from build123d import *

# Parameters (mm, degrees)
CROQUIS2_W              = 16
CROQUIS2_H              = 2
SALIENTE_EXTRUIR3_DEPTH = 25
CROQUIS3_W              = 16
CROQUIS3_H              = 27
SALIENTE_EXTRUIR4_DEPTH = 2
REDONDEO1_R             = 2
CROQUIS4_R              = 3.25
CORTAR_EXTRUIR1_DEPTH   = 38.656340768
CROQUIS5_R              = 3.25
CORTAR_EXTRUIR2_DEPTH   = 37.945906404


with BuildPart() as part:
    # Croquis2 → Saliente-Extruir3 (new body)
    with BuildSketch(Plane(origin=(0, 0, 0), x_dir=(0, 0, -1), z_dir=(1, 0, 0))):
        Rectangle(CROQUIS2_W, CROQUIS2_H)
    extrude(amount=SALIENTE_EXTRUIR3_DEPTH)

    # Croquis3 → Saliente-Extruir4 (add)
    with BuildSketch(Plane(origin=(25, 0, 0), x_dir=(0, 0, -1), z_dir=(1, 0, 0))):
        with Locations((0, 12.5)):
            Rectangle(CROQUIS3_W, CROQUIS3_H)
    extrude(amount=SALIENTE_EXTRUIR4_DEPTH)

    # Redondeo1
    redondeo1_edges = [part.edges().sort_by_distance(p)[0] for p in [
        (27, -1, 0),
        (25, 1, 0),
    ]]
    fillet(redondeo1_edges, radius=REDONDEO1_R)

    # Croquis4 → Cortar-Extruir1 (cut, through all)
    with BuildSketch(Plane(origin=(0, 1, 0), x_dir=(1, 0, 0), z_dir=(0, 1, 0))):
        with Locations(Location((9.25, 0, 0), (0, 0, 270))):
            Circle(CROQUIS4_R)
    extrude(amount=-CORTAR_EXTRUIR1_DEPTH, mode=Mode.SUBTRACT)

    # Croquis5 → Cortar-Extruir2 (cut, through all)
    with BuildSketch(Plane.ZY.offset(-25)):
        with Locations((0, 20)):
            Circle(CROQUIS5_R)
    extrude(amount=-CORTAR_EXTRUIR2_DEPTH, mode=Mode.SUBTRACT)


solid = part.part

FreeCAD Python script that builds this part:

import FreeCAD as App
import Part
import Sketcher


def edges_at(feature, points):
    """Names of the edges that pass closest to the given points."""
    edges = feature.Shape.Edges
    near = lambda p: min(range(len(edges)), key=lambda i: edges[i].distToShape(Part.Vertex(*p))[0])
    return sorted({f"Edge{near(p) + 1}" for p in points})

doc = App.newDocument("Part")
body = doc.addObject("PartDesign::Body", "Body")

# Sketch on YZ plane
sketch1 = body.newObject("Sketcher::SketchObject", "Sketch")
sketch1.AttachmentSupport = (doc.getObject("YZ_Plane"), [""])
sketch1.MapMode = "FlatFace"
sketch1.addGeometry([
    Part.LineSegment(App.Vector(1, 8, 0), App.Vector(-1, 8, 0)),
    Part.LineSegment(App.Vector(-1, 8, 0), App.Vector(-1, -8, 0)),
    Part.LineSegment(App.Vector(-1, -8, 0), App.Vector(1, -8, 0)),
    Part.LineSegment(App.Vector(1, -8, 0), App.Vector(1, 8, 0)),
], False)
sketch1.addConstraint([
    Sketcher.Constraint("Coincident", 0, 2, 1, 1),
    Sketcher.Constraint("Coincident", 1, 2, 2, 1),
    Sketcher.Constraint("Coincident", 2, 2, 3, 1),
    Sketcher.Constraint("Coincident", 3, 2, 0, 1),
    Sketcher.Constraint("Horizontal", 0),
    Sketcher.Constraint("Vertical", 1),
    Sketcher.Constraint("Horizontal", 2),
    Sketcher.Constraint("Vertical", 3),
    Sketcher.Constraint("Symmetric", 0, 2, 2, 2, -1, 1),
    Sketcher.Constraint("DistanceX", 0, 2, 0, 1, 2.0),
    Sketcher.Constraint("DistanceY", 1, 2, 1, 1, 16.0),
])
pad1 = body.newObject("PartDesign::Pad", "Pad")
pad1.Profile = sketch1
pad1.Length = 25

# Sketch on YZ plane
sketch2 = body.newObject("Sketcher::SketchObject", "Sketch001")
sketch2.AttachmentSupport = (doc.getObject("YZ_Plane"), [""])
sketch2.MapMode = "FlatFace"
sketch2.AttachmentOffset = App.Placement(App.Vector(0, 0, 25), App.Rotation())
sketch2.addGeometry([
    Part.LineSegment(App.Vector(26, 8, 0), App.Vector(-1, 8, 0)),
    Part.LineSegment(App.Vector(-1, 8, 0), App.Vector(-1, -8, 0)),
    Part.LineSegment(App.Vector(-1, -8, 0), App.Vector(26, -8, 0)),
    Part.LineSegment(App.Vector(26, -8, 0), App.Vector(26, 8, 0)),
], False)
sketch2.addConstraint([
    Sketcher.Constraint("Coincident", 0, 2, 1, 1),
    Sketcher.Constraint("Coincident", 1, 2, 2, 1),
    Sketcher.Constraint("Coincident", 2, 2, 3, 1),
    Sketcher.Constraint("Coincident", 3, 2, 0, 1),
    Sketcher.Constraint("Horizontal", 0),
    Sketcher.Constraint("Vertical", 1),
    Sketcher.Constraint("Horizontal", 2),
    Sketcher.Constraint("Vertical", 3),
    Sketcher.Constraint("DistanceX", 0, 2, 0, 1, 27.0),
    Sketcher.Constraint("DistanceY", 1, 2, 1, 1, 16.0),
    Sketcher.Constraint("DistanceX", 0, 2, -1, 1, 1.0),
    Sketcher.Constraint("DistanceY", -1, 1, 0, 2, 8.0),
])
pad2 = body.newObject("PartDesign::Pad", "Pad001")
pad2.Profile = sketch2
pad2.Length = 2
doc.recompute()

fillet = body.newObject("PartDesign::Fillet", "Fillet")
fillet.Base = (pad2, edges_at(pad2, [(27, -1, 0), (25, 1, 0)]))
fillet.Radius = 2

# Sketch on XZ plane
sketch3 = body.newObject("Sketcher::SketchObject", "Sketch002")
sketch3.AttachmentSupport = (doc.getObject("XZ_Plane"), [""])
sketch3.MapMode = "FlatFace"
sketch3.AttachmentOffset = App.Placement(App.Vector(0, 0, -1), App.Rotation())
sketch3.addGeometry(Part.Circle(App.Vector(9.2, 0, 0), App.Vector(0, 0, 1), 3.2), False)
sketch3.addConstraint([
    Sketcher.Constraint("PointOnObject", 0, 3, -1),
    Sketcher.Constraint("Diameter", 0, 6.5),
    Sketcher.Constraint("DistanceX", -1, 1, 0, 3, 9.25),
])
pocket1 = body.newObject("PartDesign::Pocket", "Pocket")
pocket1.Profile = sketch3
pocket1.Type = "ThroughAll"
pocket1.Reversed = True

# Sketch on YZ plane
sketch4 = body.newObject("Sketcher::SketchObject", "Sketch003")
sketch4.AttachmentSupport = (doc.getObject("YZ_Plane"), [""])
sketch4.MapMode = "FlatFace"
sketch4.AttachmentOffset = App.Placement(App.Vector(0, 0, 25), App.Rotation())
sketch4.addGeometry(Part.Circle(App.Vector(20, 0, 0), App.Vector(0, 0, 1), 3.2), False)
sketch4.addConstraint([
    Sketcher.Constraint("PointOnObject", 0, 3, -1),
    Sketcher.Constraint("Diameter", 0, 6.5),
    Sketcher.Constraint("DistanceX", -1, 1, 0, 3, 20.0),
])
pocket2 = body.newObject("PartDesign::Pocket", "Pocket001")
pocket2.Profile = sketch4
pocket2.Type = "ThroughAll"
pocket2.Reversed = True

doc.recompute()
